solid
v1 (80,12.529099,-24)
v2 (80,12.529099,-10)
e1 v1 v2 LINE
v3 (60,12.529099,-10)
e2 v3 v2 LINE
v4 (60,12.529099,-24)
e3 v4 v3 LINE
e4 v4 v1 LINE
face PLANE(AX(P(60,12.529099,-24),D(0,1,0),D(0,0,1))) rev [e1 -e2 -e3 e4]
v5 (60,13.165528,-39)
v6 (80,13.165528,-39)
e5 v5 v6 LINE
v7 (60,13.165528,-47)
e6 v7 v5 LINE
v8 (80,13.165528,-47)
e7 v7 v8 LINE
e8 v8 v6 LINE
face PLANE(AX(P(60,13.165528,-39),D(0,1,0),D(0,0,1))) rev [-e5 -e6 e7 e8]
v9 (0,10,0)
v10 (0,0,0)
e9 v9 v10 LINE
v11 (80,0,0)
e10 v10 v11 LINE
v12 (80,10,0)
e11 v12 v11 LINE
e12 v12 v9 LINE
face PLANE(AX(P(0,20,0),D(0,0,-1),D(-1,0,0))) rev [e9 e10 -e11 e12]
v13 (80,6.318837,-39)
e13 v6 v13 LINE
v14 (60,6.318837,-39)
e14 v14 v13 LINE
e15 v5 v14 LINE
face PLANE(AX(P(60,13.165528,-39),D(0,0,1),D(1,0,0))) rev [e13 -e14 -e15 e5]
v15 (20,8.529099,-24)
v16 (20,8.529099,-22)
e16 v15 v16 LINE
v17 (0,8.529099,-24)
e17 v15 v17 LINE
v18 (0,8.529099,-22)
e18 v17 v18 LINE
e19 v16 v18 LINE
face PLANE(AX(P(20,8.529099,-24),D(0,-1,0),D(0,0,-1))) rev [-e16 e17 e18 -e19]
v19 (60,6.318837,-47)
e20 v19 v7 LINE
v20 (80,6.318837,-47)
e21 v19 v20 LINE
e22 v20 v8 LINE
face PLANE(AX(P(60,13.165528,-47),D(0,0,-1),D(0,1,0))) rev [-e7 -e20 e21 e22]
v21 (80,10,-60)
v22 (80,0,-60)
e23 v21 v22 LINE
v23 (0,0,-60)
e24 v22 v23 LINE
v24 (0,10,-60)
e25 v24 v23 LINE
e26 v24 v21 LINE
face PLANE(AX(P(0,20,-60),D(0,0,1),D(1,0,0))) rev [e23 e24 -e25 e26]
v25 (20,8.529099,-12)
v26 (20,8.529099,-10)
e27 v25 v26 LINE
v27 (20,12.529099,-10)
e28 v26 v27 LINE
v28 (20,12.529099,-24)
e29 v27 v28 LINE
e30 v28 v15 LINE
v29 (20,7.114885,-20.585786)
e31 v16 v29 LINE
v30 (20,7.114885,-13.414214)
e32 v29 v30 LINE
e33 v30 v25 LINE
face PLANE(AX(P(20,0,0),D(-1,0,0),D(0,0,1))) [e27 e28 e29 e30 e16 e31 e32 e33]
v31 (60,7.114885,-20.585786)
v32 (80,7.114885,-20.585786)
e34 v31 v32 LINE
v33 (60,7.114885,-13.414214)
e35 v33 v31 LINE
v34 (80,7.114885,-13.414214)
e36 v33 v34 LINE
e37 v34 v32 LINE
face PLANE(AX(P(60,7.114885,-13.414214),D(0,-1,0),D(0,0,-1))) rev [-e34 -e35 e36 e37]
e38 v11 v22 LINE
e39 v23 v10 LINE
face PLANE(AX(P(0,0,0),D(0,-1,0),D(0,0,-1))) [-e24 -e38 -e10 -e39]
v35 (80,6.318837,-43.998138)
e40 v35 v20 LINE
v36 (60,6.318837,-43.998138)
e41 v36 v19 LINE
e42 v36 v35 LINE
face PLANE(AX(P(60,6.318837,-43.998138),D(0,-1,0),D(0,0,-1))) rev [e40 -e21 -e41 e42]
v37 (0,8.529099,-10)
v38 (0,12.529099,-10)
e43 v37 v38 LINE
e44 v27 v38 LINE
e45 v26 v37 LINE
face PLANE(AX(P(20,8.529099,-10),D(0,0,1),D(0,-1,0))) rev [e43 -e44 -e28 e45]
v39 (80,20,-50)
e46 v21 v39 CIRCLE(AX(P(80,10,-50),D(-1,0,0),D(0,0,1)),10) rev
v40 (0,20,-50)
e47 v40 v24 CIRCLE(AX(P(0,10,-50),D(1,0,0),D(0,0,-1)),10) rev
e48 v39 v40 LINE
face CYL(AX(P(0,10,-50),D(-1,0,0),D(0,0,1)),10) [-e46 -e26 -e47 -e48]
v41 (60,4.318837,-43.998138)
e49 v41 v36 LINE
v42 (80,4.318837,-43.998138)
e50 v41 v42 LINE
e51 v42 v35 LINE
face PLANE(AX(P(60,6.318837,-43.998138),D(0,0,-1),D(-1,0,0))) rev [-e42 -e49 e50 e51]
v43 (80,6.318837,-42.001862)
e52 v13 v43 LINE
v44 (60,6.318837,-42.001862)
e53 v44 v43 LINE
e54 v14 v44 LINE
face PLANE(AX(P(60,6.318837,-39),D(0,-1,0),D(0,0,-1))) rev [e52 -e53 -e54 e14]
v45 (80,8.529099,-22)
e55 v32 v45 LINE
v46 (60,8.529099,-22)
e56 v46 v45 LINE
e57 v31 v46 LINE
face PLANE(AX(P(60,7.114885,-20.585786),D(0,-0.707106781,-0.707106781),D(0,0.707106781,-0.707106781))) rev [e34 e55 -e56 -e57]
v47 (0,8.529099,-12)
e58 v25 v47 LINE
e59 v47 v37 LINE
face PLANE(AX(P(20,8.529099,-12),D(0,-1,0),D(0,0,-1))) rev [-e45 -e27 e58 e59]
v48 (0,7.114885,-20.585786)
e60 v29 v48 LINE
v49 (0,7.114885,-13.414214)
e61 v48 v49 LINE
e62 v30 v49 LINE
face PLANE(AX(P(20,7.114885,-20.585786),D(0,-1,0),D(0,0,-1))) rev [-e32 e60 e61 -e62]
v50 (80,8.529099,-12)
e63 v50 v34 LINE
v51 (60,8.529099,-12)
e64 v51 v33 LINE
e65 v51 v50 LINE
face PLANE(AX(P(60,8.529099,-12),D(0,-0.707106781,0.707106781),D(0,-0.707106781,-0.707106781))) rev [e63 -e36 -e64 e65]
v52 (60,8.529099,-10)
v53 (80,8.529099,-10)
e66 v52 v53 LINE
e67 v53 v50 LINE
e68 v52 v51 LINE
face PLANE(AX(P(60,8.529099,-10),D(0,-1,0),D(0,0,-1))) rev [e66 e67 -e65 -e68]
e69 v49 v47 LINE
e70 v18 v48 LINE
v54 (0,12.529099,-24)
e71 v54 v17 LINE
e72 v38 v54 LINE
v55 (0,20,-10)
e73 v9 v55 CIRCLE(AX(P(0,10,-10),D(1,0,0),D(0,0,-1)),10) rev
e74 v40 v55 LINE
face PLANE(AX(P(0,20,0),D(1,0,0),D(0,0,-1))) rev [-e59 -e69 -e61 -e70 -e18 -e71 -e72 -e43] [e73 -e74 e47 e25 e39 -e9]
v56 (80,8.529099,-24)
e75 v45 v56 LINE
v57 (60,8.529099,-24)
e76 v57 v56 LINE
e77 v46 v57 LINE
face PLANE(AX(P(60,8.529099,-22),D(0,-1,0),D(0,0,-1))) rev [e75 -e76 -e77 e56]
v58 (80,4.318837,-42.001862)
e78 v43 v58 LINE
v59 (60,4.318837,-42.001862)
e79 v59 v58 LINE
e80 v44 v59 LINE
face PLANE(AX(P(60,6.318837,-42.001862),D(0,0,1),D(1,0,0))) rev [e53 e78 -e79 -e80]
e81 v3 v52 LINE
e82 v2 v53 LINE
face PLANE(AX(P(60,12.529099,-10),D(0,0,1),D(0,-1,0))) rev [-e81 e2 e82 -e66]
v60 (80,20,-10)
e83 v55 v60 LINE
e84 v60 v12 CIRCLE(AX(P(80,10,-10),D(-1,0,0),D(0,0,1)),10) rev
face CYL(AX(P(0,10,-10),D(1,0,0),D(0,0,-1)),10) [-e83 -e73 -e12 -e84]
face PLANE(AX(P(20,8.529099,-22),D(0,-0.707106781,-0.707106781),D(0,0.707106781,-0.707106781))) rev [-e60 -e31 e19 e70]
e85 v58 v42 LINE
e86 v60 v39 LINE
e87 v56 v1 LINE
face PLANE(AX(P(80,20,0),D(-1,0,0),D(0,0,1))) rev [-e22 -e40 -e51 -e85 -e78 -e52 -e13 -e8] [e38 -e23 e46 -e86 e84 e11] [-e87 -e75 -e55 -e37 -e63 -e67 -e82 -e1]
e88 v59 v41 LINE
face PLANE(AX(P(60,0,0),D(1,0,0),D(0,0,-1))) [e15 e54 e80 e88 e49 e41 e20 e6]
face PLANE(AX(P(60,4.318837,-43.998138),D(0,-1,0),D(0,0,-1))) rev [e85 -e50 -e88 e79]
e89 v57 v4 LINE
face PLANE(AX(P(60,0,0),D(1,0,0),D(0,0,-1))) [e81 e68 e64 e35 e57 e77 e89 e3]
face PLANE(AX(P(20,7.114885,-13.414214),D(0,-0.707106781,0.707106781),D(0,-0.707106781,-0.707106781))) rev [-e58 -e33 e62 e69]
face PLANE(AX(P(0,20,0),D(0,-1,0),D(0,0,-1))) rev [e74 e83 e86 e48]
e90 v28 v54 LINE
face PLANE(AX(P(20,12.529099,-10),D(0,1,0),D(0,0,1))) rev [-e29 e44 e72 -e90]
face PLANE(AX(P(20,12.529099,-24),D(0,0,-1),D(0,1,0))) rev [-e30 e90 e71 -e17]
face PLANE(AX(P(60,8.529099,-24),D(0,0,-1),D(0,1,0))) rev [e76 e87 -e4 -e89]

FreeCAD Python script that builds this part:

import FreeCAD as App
import Part
import Sketcher
from FreeCAD import Vector


def edges_at(feature, points):
    """Names of the edges that pass closest to the given points."""
    edges = feature.Shape.Edges
    near = lambda p: min(range(len(edges)), key=lambda i: edges[i].distToShape(Part.Vertex(*p))[0])
    return sorted({f"Edge{near(p) + 1}" for p in points})

doc = App.newDocument("Part")
body = doc.addObject("PartDesign::Body", "Body")

sketch1 = body.newObject("Sketcher::SketchObject", "Sketch")
sketch1.AttachmentSupport = (doc.getObject("XZ_Plane"), [""])
sketch1.MapMode = "FlatFace"
sketch1.addGeometry(Part.LineSegment(Vector(0, -60, 0), Vector(0, 0, 0)), False)
sketch1.addGeometry(Part.LineSegment(Vector(0, 0, 0), Vector(80, 0, 0)), False)
sketch1.addGeometry(Part.LineSegment(Vector(80, 0, 0), Vector(80, -60, 0)), False)
sketch1.addGeometry(Part.LineSegment(Vector(80, -60, 0), Vector(0, -60, 0)), False)
sketch1.addConstraint(Sketcher.Constraint("Coincident", 0, 2, 1, 1))
sketch1.addConstraint(Sketcher.Constraint("Coincident", 1, 2, 2, 1))
sketch1.addConstraint(Sketcher.Constraint("Coincident", 2, 2, 3, 1))
sketch1.addConstraint(Sketcher.Constraint("Coincident", 3, 2, 0, 1))
sketch1.addConstraint(Sketcher.Constraint("Vertical", 0))
sketch1.addConstraint(Sketcher.Constraint("Horizontal", 1))
sketch1.addConstraint(Sketcher.Constraint("Vertical", 2))
sketch1.addConstraint(Sketcher.Constraint("Horizontal", 3))
sketch1.addConstraint(Sketcher.Constraint("Coincident", 0, 2, -1, 1))
sketch1.addConstraint(Sketcher.Constraint("DistanceX", 1, 1, 1, 2, 80.0))
sketch1.addConstraint(Sketcher.Constraint("DistanceY", 0, 1, 0, 2, 60.0))
pad1 = body.newObject("PartDesign::Pad", "Pad")
pad1.Profile = sketch1
pad1.Length = 20
pad1.Reversed = True

sketch2 = body.newObject("Sketcher::SketchObject", "Sketch001")
sketch2.AttachmentSupport = (doc.getObject("YZ_Plane"), [""])
sketch2.MapMode = "FlatFace"
sketch2.AttachmentOffset = App.Placement(Vector(0, 0, 80), App.Rotation())
sketch2.addGeometry(Part.LineSegment(Vector(12.5, -10, 0), Vector(8.5, -10, 0)), False)
sketch2.addGeometry(Part.LineSegment(Vector(8.5, -10, 0), Vector(8.5, -12, 0)), False)
sketch2.addGeometry(Part.LineSegment(Vector(8.5, -12, 0), Vector(7.1, -13.4, 0)), False)
sketch2.addGeometry(Part.LineSegment(Vector(7.1, -13.4, 0), Vector(7.1, -20.6, 0)), False)
sketch2.addGeometry(Part.LineSegment(Vector(7.1, -20.6, 0), Vector(8.5, -22, 0)), False)
sketch2.addGeometry(Part.LineSegment(Vector(8.5, -22, 0), Vector(8.5, -24, 0)), False)
sketch2.addGeometry(Part.LineSegment(Vector(8.5, -24, 0), Vector(12.5, -24, 0)), False)
sketch2.addGeometry(Part.LineSegment(Vector(12.5, -24, 0), Vector(12.5, -10, 0)), False)
sketch2.addGeometry(Part.LineSegment(Vector(6.3, -44, 0), Vector(6.3, -47, 0)), False)
sketch2.addGeometry(Part.LineSegment(Vector(6.3, -47, 0), Vector(13.2, -47, 0)), False)
sketch2.addGeometry(Part.LineSegment(Vector(13.2, -47, 0), Vector(13.2, -39, 0)), False)
sketch2.addGeometry(Part.LineSegment(Vector(13.2, -39, 0), Vector(6.3, -39, 0)), False)
sketch2.addGeometry(Part.LineSegment(Vector(6.3, -39, 0), Vector(6.3, -42, 0)), False)
sketch2.addGeometry(Part.LineSegment(Vector(6.3, -42, 0), Vector(4.3, -42, 0)), False)
sketch2.addGeometry(Part.LineSegment(Vector(4.3, -42, 0), Vector(4.3, -44, 0)), False)
sketch2.addGeometry(Part.LineSegment(Vector(4.3, -44, 0), Vector(6.3, -44, 0)), False)
sketch2.addConstraint(Sketcher.Constraint("Coincident", 0, 2, 1, 1))
sketch2.addConstraint(Sketcher.Constraint("Coincident", 1, 2, 2, 1))
sketch2.addConstraint(Sketcher.Constraint("Coincident", 2, 2, 3, 1))
sketch2.addConstraint(Sketcher.Constraint("Coincident", 3, 2, 4, 1))
sketch2.addConstraint(Sketcher.Constraint("Coincident", 4, 2, 5, 1))
sketch2.addConstraint(Sketcher.Constraint("Coincident", 5, 2, 6, 1))
sketch2.addConstraint(Sketcher.Constraint("Coincident", 6, 2, 7, 1))
sketch2.addConstraint(Sketcher.Constraint("Coincident", 7, 2, 0, 1))
sketch2.addConstraint(Sketcher.Constraint("Coincident", 8, 2, 9, 1))
sketch2.addConstraint(Sketcher.Constraint("Coincident", 9, 2, 10, 1))
sketch2.addConstraint(Sketcher.Constraint("Coincident", 10, 2, 11, 1))
sketch2.addConstraint(Sketcher.Constraint("Coincident", 11, 2, 12, 1))
sketch2.addConstraint(Sketcher.Constraint("Coincident", 12, 2, 13, 1))
sketch2.addConstraint(Sketcher.Constraint("Coincident", 13, 2, 14, 1))
sketch2.addConstraint(Sketcher.Constraint("Coincident", 14, 2, 15, 1))
sketch2.addConstraint(Sketcher.Constraint("Coincident", 15, 2, 8, 1))
sketch2.addConstraint(Sketcher.Constraint("Horizontal", 0))
sketch2.addConstraint(Sketcher.Constraint("Vertical", 1))
sketch2.addConstraint(Sketcher.Constraint("Vertical", 3))
sketch2.addConstraint(Sketcher.Constraint("Vertical", 5))
sketch2.addConstraint(Sketcher.Constraint("Horizontal", 6))
sketch2.addConstraint(Sketcher.Constraint("Vertical", 7))
sketch2.addConstraint(Sketcher.Constraint("Vertical", 8))
sketch2.addConstraint(Sketcher.Constraint("Horizontal", 9))
sketch2.addConstraint(Sketcher.Constraint("Vertical", 10))
sketch2.addConstraint(Sketcher.Constraint("Horizontal", 11))
sketch2.addConstraint(Sketcher.Constraint("Vertical", 12))
sketch2.addConstraint(Sketcher.Constraint("Horizontal", 13))
sketch2.addConstraint(Sketcher.Constraint("Vertical", 14))
sketch2.addConstraint(Sketcher.Constraint("Horizontal", 15))
sketch2.addConstraint(Sketcher.Constraint("Perpendicular", 2, 4))
sketch2.addConstraint(Sketcher.Constraint("Vertical", 1, 2, 4, 2))
sketch2.addConstraint(Sketcher.Constraint("Vertical", 8, 2, 11, 2))
sketch2.addConstraint(Sketcher.Constraint("Equal", 15, 1))
sketch2.addConstraint(Sketcher.Constraint("Equal", 1, 5))
sketch2.addConstraint(Sketcher.Constraint("Equal", 8, 12))
sketch2.addConstraint(Sketcher.Constraint("Equal", 2, 4))
sketch2.addConstraint(Sketcher.Constraint("DistanceX", 0, 2, 0, 1, 4.0))
sketch2.addConstraint(Sketcher.Constraint("DistanceX", 13, 2, 13, 1, 2.0))
sketch2.addConstraint(Sketcher.Constraint("DistanceY", 7, 1, 7, 2, 14.0))
sketch2.addConstraint(Sketcher.Constraint("DistanceY", 10, 1, 10, 2, 8.0))
sketch2.addConstraint(Sketcher.Constraint("Distance", 2, 2.0))
sketch2.addConstraint(Sketcher.Constraint("DistanceY", 0, 2, -1, 1, 10.0))
sketch2.addConstraint(Sketcher.Constraint("DistanceY", 8, 2, -1, 1, 47.0))
sketch2.addConstraint(Sketcher.Constraint("DistanceX", 9, 1, 9, 2, 6.846691))
sketch2.addConstraint(Sketcher.Constraint("DistanceX", -1, 1, 0, 2, 8.529099))
sketch2.addConstraint(Sketcher.Constraint("DistanceY", 8, 2, 8, 1, 3.001862))
sketch2.addConstraint(Sketcher.Constraint("DistanceX", -1, 1, 9, 2, 13.165528))
pocket1 = body.newObject("PartDesign::Pocket", "Pocket")
pocket1.Profile = sketch2
pocket1.Length = 20
doc.recompute()

fillet = body.newObject("PartDesign::Fillet", "Fillet")
fillet.Base = (pocket1, edges_at(pocket1, [(40, 20, -60), (40, 20, 0)]))
fillet.Radius = 10

sketch3 = body.newObject("Sketcher::SketchObject", "Sketch002")
sketch3.AttachmentSupport = (doc.getObject("YZ_Plane"), [""])
sketch3.MapMode = "FlatFace"
sketch3.addGeometry(Part.LineSegment(Vector(12.5, -10, 0), Vector(12.5, -24, 0)), False)
sketch3.addGeometry(Part.LineSegment(Vector(12.5, -24, 0), Vector(8.5, -24, 0)), False)
sketch3.addGeometry(Part.LineSegment(Vector(8.5, -24, 0), Vector(8.5, -22, 0)), False)
sketch3.addGeometry(Part.LineSegment(Vector(8.5, -22, 0), Vector(7.1, -20.6, 0)), False)
sketch3.addGeometry(Part.LineSegment(Vector(7.1, -20.6, 0), Vector(7.1, -13.4, 0)), False)
sketch3.addGeometry(Part.LineSegment(Vector(7.1, -13.4, 0), Vector(8.5, -12, 0)), False)
sketch3.addGeometry(Part.LineSegment(Vector(8.5, -12, 0), Vector(8.5, -10, 0)), False)
sketch3.addGeometry(Part.LineSegment(Vector(8.5, -10, 0), Vector(12.5, -10, 0)), False)
sketch3.addConstraint(Sketcher.Constraint("Coincident", 0, 2, 1, 1))
sketch3.addConstraint(Sketcher.Constraint("Coincident", 1, 2, 2, 1))
sketch3.addConstraint(Sketcher.Constraint("Coincident", 2, 2, 3, 1))
sketch3.addConstraint(Sketcher.Constraint("Coincident", 3, 2, 4, 1))
sketch3.addConstraint(Sketcher.Constraint("Coincident", 4, 2, 5, 1))
sketch3.addConstraint(Sketcher.Constraint("Coincident", 5, 2, 6, 1))
sketch3.addConstraint(Sketcher.Constraint("Coincident", 6, 2, 7, 1))
sketch3.addConstraint(Sketcher.Constraint("Coincident", 7, 2, 0, 1))
sketch3.addConstraint(Sketcher.Constraint("Vertical", 0))
sketch3.addConstraint(Sketcher.Constraint("Horizontal", 1))
sketch3.addConstraint(Sketcher.Constraint("Vertical", 2))
sketch3.addConstraint(Sketcher.Constraint("Vertical", 4))
sketch3.addConstraint(Sketcher.Constraint("Vertical", 6))
sketch3.addConstraint(Sketcher.Constraint("Horizontal", 7))
sketch3.addConstraint(Sketcher.Constraint("Perpendicular", 3, 5))
sketch3.addConstraint(Sketcher.Constraint("Vertical", 2, 2, 5, 2))
sketch3.addConstraint(Sketcher.Constraint("Equal", 2, 6))
sketch3.addConstraint(Sketcher.Constraint("Equal", 3, 5))
sketch3.addConstraint(Sketcher.Constraint("DistanceX", 1, 2, 1, 1, 4.0))
sketch3.addConstraint(Sketcher.Constraint("DistanceY", 0, 2, 0, 1, 14.0))
sketch3.addConstraint(Sketcher.Constraint("DistanceY", 2, 1, 2, 2, 2.0))
sketch3.addConstraint(Sketcher.Constraint("Distance", 3, 2.0))
sketch3.addConstraint(Sketcher.Constraint("DistanceY", 0, 2, -1, 1, 24.0))
sketch3.addConstraint(Sketcher.Constraint("DistanceX", -1, 1, 0, 2, 12.529099))
pocket2 = body.newObject("PartDesign::Pocket", "Pocket001")
pocket2.Profile = sketch3
pocket2.Length = 20
pocket2.Reversed = True

doc.recompute()
